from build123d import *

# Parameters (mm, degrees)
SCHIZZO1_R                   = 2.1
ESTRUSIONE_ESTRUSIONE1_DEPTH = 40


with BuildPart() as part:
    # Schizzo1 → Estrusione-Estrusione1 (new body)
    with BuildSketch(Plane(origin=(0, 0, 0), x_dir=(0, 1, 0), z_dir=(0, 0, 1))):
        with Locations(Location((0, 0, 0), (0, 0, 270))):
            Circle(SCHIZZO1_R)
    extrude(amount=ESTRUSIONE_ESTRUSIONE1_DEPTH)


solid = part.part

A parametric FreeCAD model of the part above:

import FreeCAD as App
import Part
import Sketcher
from FreeCAD import Vector
Q = App.Units.Quantity

doc = App.newDocument("Part")
body = doc.addObject("PartDesign::Body", "Body")

sketch1 = body.newObject("Sketcher::SketchObject", "Sketch")
sketch1.AttachmentSupport = (doc.getObject("XY_Plane"), [""])
sketch1.MapMode = "FlatFace"
sketch1.addGeometry(Part.Circle(Vector(0, 0, 0), Vector(0, 0, 1), 2.1), False)
sketch1.addConstraint(Sketcher.Constraint("Coincident", 0, 3, -1, 1))
sketch1.addConstraint(Sketcher.Constraint("Diameter", 0, Q("4.2 mm")))
pad1 = body.newObject("PartDesign::Pad", "Pad")
pad1.Profile = sketch1
pad1.Length = 40

doc.recompute()
